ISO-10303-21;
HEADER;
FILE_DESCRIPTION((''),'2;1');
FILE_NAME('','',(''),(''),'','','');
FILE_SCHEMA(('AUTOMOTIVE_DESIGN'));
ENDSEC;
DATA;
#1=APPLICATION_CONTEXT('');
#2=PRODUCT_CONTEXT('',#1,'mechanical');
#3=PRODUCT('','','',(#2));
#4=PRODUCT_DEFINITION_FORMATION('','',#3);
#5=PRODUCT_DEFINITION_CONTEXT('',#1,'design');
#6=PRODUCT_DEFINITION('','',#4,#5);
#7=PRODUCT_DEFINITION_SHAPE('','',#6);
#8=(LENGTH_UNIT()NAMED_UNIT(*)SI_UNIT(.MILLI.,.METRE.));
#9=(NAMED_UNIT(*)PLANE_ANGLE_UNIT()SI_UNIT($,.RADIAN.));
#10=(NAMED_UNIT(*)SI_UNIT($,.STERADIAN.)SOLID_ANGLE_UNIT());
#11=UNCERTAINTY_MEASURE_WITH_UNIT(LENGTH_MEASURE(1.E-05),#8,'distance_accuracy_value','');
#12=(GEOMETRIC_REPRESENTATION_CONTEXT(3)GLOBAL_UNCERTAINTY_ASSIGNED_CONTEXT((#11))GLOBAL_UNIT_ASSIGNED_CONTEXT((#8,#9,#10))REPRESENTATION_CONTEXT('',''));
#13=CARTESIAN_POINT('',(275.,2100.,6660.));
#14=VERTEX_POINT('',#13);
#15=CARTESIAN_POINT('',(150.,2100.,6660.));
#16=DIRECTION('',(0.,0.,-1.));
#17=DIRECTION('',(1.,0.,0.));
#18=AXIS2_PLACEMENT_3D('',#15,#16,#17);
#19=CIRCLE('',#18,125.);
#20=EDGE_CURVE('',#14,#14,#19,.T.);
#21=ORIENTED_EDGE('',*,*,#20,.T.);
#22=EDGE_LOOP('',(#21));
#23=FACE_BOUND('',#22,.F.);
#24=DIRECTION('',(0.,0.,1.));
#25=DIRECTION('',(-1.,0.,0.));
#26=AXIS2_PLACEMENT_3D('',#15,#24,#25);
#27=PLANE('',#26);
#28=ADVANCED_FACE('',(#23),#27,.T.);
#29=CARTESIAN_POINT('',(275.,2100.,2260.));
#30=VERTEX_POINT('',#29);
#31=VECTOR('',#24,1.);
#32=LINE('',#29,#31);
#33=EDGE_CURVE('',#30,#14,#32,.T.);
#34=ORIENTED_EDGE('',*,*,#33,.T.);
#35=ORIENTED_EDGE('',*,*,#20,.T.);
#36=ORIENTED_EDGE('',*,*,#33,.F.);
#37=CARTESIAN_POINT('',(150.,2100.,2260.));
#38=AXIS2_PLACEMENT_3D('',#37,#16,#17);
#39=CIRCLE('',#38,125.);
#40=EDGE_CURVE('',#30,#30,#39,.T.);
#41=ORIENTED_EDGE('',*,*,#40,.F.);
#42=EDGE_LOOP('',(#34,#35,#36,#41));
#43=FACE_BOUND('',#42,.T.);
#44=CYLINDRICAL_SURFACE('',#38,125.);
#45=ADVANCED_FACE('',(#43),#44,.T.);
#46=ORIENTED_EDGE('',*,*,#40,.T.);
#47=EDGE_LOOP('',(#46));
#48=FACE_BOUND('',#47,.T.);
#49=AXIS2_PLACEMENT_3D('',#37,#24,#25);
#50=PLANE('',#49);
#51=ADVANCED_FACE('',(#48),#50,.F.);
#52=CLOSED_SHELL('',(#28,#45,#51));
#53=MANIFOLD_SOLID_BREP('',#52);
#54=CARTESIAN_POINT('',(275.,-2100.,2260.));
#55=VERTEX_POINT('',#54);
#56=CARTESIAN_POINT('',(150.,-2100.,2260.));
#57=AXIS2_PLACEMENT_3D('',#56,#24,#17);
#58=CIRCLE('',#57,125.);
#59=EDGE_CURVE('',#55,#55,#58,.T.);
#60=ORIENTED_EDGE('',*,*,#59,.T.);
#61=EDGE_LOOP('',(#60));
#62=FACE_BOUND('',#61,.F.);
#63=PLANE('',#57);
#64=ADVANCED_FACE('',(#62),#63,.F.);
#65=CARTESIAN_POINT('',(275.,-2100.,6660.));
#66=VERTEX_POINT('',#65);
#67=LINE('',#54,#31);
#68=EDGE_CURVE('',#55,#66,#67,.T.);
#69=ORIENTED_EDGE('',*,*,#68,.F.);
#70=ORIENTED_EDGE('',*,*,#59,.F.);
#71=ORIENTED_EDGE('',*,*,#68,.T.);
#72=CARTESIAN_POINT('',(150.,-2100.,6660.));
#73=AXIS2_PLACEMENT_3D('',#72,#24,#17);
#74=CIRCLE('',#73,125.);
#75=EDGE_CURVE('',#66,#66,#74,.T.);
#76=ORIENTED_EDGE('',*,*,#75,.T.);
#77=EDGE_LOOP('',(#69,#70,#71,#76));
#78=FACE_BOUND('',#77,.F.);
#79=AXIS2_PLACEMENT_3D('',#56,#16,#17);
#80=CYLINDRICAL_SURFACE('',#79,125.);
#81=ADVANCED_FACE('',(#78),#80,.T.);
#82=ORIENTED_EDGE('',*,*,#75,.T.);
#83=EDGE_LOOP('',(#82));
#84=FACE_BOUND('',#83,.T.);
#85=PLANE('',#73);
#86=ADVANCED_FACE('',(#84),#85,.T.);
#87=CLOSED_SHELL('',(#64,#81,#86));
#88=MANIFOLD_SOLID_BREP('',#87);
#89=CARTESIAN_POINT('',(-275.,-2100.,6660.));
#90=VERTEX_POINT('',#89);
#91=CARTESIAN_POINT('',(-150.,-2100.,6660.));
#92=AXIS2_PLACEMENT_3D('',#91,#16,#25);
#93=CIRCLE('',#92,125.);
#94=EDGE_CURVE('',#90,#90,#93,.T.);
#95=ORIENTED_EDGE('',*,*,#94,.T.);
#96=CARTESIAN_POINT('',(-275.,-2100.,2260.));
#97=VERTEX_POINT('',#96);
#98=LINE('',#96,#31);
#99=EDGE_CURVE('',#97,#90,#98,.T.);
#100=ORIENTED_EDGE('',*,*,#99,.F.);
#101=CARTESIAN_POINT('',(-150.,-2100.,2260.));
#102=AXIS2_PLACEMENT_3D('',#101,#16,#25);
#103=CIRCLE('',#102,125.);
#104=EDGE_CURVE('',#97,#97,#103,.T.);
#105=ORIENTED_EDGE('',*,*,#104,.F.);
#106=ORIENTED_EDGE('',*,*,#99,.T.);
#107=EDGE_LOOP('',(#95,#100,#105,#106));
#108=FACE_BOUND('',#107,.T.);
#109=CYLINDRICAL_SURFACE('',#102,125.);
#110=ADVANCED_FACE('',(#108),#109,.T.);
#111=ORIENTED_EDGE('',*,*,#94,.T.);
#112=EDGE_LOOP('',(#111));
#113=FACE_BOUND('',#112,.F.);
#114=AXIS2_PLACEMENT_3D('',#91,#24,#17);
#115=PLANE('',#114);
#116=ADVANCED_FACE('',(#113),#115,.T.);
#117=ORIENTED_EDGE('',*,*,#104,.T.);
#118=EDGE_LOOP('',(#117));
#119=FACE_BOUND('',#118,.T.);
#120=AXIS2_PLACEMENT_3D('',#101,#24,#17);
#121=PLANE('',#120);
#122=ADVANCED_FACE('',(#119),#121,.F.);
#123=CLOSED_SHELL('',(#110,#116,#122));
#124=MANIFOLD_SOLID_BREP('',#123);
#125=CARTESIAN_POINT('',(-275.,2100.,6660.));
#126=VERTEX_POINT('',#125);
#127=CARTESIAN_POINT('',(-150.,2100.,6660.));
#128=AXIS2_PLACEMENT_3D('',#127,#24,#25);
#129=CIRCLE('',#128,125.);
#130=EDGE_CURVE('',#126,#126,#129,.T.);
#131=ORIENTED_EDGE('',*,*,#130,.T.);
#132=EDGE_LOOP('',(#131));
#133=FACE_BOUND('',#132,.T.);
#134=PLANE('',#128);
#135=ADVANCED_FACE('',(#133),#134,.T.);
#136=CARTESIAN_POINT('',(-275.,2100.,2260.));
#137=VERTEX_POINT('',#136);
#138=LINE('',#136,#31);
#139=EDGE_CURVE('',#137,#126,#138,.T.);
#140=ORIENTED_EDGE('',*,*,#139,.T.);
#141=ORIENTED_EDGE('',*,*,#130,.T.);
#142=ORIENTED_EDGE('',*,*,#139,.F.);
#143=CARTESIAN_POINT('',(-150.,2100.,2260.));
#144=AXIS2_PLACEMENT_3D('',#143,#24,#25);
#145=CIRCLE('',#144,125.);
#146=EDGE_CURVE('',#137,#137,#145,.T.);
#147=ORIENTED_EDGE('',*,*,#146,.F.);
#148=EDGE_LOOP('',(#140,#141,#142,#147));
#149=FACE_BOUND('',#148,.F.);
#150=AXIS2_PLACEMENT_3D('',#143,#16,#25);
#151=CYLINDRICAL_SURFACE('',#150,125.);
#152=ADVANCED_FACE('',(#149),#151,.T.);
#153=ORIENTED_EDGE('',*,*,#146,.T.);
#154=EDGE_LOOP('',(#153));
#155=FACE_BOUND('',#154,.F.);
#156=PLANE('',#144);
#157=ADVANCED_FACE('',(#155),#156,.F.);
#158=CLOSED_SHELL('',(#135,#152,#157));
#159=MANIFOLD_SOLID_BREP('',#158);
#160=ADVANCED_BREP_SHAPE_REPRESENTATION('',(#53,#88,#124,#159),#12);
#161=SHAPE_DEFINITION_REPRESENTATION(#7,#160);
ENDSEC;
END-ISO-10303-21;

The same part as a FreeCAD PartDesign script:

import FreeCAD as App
import Part
import Sketcher
Q = App.Units.Quantity

doc = App.newDocument("Part")
body = doc.addObject("PartDesign::Body", "Body")

# Sketch on XY plane
sketch1 = body.newObject("Sketcher::SketchObject", "Sketch")
sketch1.AttachmentSupport = (doc.getObject("XY_Plane"), [""])
sketch1.MapMode = "FlatFace"
sketch1.AttachmentOffset = App.Placement(App.Vector(0, 0, 2260), App.Rotation())
sketch1.addGeometry(Part.Circle(App.Vector(150, -2100, 0), App.Vector(0, 0, 1), 125), False)
sketch1.addConstraint([
    Sketcher.Constraint("Diameter", 0, Q("250 mm")),
    Sketcher.Constraint("DistanceX", -1, 1, 0, 3, Q("150 mm")),
    Sketcher.Constraint("DistanceY", 0, 3, -1, 1, Q("2100 mm")),
])
pad1 = body.newObject("PartDesign::Pad", "Pad")
pad1.Profile = sketch1
pad1.Length = 4400
body2 = doc.addObject("PartDesign::Body", "Body001")
doc.recompute()

mirroring = doc.addObject("Part::Mirroring", "Mirroring")
mirroring.Source = body
mirroring.Base = App.Vector(0, 0, 0)
mirroring.Normal = App.Vector(1, 0, 0)
body2.BaseFeature = mirroring
doc.recompute()
body3 = doc.addObject("PartDesign::Body", "Body002")
doc.recompute()

mirroring2 = doc.addObject("Part::Mirroring", "Mirroring001")
mirroring2.Source = body
mirroring2.Base = App.Vector(0, 0, 0)
mirroring2.Normal = App.Vector(0, -1, 0)
body3.BaseFeature = mirroring2
doc.recompute()
body4 = doc.addObject("PartDesign::Body", "Body003")
doc.recompute()

mirroring3 = doc.addObject("Part::Mirroring", "Mirroring002")
mirroring3.Source = body2
mirroring3.Base = App.Vector(0, 0, 0)
mirroring3.Normal = App.Vector(0, -1, 0)
body4.BaseFeature = mirroring3
doc.recompute()
mirroring.Visibility = False
mirroring2.Visibility = False
mirroring3.Visibility = False

doc.recompute()
